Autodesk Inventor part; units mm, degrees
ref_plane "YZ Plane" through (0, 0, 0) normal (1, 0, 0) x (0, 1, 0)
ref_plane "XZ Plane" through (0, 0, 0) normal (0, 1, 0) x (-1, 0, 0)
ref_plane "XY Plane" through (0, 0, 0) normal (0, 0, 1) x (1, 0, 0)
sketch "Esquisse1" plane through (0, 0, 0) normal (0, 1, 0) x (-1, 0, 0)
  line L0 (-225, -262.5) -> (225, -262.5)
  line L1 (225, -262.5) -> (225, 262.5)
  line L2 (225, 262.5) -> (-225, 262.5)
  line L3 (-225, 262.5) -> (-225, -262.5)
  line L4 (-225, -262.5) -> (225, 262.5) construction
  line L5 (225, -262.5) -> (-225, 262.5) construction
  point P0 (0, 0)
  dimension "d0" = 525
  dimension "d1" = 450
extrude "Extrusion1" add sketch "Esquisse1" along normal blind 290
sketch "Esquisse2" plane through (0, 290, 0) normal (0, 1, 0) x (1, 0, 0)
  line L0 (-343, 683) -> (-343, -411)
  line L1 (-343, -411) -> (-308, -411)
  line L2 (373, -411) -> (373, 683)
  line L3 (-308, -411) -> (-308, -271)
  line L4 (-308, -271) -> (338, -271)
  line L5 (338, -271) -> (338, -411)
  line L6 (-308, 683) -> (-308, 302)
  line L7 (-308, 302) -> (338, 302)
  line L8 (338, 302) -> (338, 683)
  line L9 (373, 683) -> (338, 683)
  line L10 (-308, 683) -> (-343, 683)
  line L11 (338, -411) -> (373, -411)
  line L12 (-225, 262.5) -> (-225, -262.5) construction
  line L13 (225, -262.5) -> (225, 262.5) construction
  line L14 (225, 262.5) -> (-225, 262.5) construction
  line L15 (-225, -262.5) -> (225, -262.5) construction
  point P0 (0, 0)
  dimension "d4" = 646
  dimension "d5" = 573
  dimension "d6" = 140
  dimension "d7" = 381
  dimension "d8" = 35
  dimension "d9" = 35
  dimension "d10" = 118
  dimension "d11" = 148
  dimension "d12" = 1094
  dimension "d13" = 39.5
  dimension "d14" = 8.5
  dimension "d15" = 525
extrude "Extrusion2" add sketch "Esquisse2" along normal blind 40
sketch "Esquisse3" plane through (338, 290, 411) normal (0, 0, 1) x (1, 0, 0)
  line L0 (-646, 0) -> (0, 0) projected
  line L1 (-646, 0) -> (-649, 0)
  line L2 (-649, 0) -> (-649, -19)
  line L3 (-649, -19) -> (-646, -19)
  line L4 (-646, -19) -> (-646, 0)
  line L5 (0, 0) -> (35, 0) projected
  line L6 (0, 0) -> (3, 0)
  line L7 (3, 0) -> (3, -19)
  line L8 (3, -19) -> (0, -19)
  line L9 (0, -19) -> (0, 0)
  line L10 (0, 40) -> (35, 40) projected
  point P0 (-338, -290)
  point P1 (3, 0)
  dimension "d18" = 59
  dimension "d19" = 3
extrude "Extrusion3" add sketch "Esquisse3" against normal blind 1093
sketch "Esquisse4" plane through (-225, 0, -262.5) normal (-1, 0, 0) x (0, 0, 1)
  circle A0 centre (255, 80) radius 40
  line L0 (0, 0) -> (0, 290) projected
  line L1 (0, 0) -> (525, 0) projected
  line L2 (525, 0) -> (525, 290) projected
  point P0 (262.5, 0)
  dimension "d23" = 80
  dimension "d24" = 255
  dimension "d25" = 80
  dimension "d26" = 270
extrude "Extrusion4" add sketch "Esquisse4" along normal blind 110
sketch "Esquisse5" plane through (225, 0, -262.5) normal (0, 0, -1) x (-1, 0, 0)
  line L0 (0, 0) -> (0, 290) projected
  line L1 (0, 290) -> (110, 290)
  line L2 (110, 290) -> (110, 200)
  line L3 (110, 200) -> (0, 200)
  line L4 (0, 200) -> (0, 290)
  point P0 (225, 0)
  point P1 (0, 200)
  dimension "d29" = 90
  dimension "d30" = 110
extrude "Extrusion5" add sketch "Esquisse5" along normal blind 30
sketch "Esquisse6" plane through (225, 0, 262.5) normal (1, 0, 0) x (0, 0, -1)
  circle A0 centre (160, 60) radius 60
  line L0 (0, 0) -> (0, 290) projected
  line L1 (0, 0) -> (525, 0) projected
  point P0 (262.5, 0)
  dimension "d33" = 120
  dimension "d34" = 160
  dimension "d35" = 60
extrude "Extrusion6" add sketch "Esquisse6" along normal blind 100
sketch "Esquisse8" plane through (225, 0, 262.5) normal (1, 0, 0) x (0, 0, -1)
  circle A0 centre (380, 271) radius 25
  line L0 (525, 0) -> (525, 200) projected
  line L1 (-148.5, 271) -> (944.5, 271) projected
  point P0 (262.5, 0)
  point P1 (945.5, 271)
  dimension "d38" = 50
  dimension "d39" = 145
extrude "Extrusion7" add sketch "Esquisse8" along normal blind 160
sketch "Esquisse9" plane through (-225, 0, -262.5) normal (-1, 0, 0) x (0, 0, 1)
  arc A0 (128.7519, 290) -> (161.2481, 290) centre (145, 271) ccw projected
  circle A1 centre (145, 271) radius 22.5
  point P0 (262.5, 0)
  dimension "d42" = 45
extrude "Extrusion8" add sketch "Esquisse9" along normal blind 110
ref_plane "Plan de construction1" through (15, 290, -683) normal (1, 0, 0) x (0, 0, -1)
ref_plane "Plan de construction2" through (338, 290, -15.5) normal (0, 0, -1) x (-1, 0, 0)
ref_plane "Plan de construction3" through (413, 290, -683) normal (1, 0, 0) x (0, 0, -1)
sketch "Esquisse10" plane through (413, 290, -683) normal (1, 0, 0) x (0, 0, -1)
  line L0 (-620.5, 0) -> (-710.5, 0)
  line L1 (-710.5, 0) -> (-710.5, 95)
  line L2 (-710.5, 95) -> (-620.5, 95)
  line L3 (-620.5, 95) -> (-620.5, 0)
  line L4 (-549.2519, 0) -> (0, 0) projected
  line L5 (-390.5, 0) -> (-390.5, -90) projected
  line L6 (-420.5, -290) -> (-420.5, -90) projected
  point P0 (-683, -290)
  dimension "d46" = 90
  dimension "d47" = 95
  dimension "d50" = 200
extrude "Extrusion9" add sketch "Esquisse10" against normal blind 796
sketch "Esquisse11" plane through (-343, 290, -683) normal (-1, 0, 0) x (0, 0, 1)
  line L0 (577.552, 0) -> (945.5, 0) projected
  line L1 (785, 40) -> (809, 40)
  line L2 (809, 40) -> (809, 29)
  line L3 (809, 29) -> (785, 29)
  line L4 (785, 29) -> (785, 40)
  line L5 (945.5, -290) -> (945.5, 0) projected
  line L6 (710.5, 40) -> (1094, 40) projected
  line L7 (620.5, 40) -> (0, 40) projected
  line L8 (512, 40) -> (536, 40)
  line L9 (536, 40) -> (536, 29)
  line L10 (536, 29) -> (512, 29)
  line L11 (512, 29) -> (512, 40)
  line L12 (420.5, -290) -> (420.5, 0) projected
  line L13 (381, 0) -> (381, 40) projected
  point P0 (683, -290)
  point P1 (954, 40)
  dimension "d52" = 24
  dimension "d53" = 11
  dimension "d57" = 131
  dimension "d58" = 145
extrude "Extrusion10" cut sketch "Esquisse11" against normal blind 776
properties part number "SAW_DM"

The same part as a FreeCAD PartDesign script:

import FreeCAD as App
import Part
import Sketcher
Q = App.Units.Quantity

doc = App.newDocument("Part")
body = doc.addObject("PartDesign::Body", "Body")

# Sketch on XZ plane
sketch1 = body.newObject("Sketcher::SketchObject", "Sketch")
sketch1.AttachmentSupport = (doc.getObject("XZ_Plane"), [""])
sketch1.MapMode = "FlatFace"
sketch1.addGeometry([
    Part.LineSegment(App.Vector(225, 262.5, 0), App.Vector(225, -262.5, 0)),
    Part.LineSegment(App.Vector(225, -262.5, 0), App.Vector(-225, -262.5, 0)),
    Part.LineSegment(App.Vector(-225, -262.5, 0), App.Vector(-225, 262.5, 0)),
    Part.LineSegment(App.Vector(-225, 262.5, 0), App.Vector(225, 262.5, 0)),
], False)
sketch1.addConstraint([
    Sketcher.Constraint("Coincident", 0, 2, 1, 1),
    Sketcher.Constraint("Coincident", 1, 2, 2, 1),
    Sketcher.Constraint("Coincident", 2, 2, 3, 1),
    Sketcher.Constraint("Coincident", 3, 2, 0, 1),
    Sketcher.Constraint("Vertical", 0),
    Sketcher.Constraint("Horizontal", 1),
    Sketcher.Constraint("Vertical", 2),
    Sketcher.Constraint("Horizontal", 3),
    Sketcher.Constraint("Symmetric", 0, 2, 2, 2, -1, 1),
    Sketcher.Constraint("DistanceX", 1, 2, 1, 1, Q("450 mm")),
    Sketcher.Constraint("DistanceY", 0, 2, 0, 1, Q("525 mm")),
])
pad1 = body.newObject("PartDesign::Pad", "Pad")
pad1.Profile = sketch1
pad1.Length = 290
pad1.Reversed = True

# Sketch on XZ plane
sketch2 = body.newObject("Sketcher::SketchObject", "Sketch001")
sketch2.AttachmentSupport = (doc.getObject("XZ_Plane"), [""])
sketch2.MapMode = "FlatFace"
sketch2.AttachmentOffset = App.Placement(App.Vector(0, 0, -290), App.Rotation())
sketch2.addGeometry([
    Part.LineSegment(App.Vector(-308, -683, 0), App.Vector(-343, -683, 0)),  # 0
    Part.LineSegment(App.Vector(-343, -683, 0), App.Vector(-343, 411, 0)),  # 1
    Part.LineSegment(App.Vector(-343, 411, 0), App.Vector(-308, 411, 0)),  # 2
    Part.LineSegment(App.Vector(-308, 411, 0), App.Vector(-308, 271, 0)),  # 3
    Part.LineSegment(App.Vector(-308, 271, 0), App.Vector(338, 271, 0)),  # 4
    Part.LineSegment(App.Vector(338, 271, 0), App.Vector(338, 411, 0)),  # 5
    Part.LineSegment(App.Vector(338, 411, 0), App.Vector(373, 411, 0)),  # 6
    Part.LineSegment(App.Vector(373, 411, 0), App.Vector(373, -683, 0)),  # 7
    Part.LineSegment(App.Vector(373, -683, 0), App.Vector(338, -683, 0)),  # 8
    Part.LineSegment(App.Vector(338, -683, 0), App.Vector(338, -302, 0)),  # 9
    Part.LineSegment(App.Vector(338, -302, 0), App.Vector(-308, -302, 0)),  # 10
    Part.LineSegment(App.Vector(-308, -302, 0), App.Vector(-308, -683, 0)),  # 11
], False)
sketch2.addConstraint([
    Sketcher.Constraint("Coincident", 0, 2, 1, 1),
    Sketcher.Constraint("Coincident", 1, 2, 2, 1),
    Sketcher.Constraint("Coincident", 2, 2, 3, 1),
    Sketcher.Constraint("Coincident", 3, 2, 4, 1),
    Sketcher.Constraint("Coincident", 4, 2, 5, 1),
    Sketcher.Constraint("Coincident", 5, 2, 6, 1),
    Sketcher.Constraint("Coincident", 6, 2, 7, 1),
    Sketcher.Constraint("Coincident", 7, 2, 8, 1),
    Sketcher.Constraint("Coincident", 8, 2, 9, 1),
    Sketcher.Constraint("Coincident", 9, 2, 10, 1),
    Sketcher.Constraint("Coincident", 10, 2, 11, 1),
    Sketcher.Constraint("Coincident", 11, 2, 0, 1),
    Sketcher.Constraint("Horizontal", 0),
    Sketcher.Constraint("Vertical", 1),
    Sketcher.Constraint("Horizontal", 2),
    Sketcher.Constraint("Vertical", 3),
    Sketcher.Constraint("Horizontal", 4),
    Sketcher.Constraint("Vertical", 5),
    Sketcher.Constraint("Horizontal", 6),
    Sketcher.Constraint("Vertical", 7),
    Sketcher.Constraint("Horizontal", 8),
    Sketcher.Constraint("Vertical", 9),
    Sketcher.Constraint("Horizontal", 10),
    Sketcher.Constraint("Vertical", 11),
    Sketcher.Constraint("Horizontal", 2, 2, 5, 2),
    Sketcher.Constraint("Horizontal", 0, 2, 7, 2),
    Sketcher.Constraint("Vertical", 5, 2, 8, 2),
    Sketcher.Constraint("Vertical", 3, 2, 10, 2),
    Sketcher.Constraint("Equal", 2, 6),
    Sketcher.Constraint("DistanceX", 0, 2, 0, 1, Q("35 mm")),
    Sketcher.Constraint("DistanceX", 4, 1, 4, 2, Q("646 mm")),
    Sketcher.Constraint("DistanceY", 1, 1, 1, 2, Q("1094 mm")),
    Sketcher.Constraint("DistanceY", 3, 2, 3, 1, Q("140 mm")),
    Sketcher.Constraint("DistanceY", 9, 1, 9, 2, Q("381 mm")),
    Sketcher.Constraint("DistanceX", 0, 2, -1, 1, Q("343 mm")),
    Sketcher.Constraint("DistanceY", 0, 2, -1, 1, Q("683 mm")),
])
pad2 = body.newObject("PartDesign::Pad", "Pad001")
pad2.Profile = sketch2
pad2.Length = 40
pad2.Reversed = True

# Sketch on XY plane
sketch3 = body.newObject("Sketcher::SketchObject", "Sketch002")
sketch3.AttachmentSupport = (doc.getObject("XY_Plane"), [""])
sketch3.MapMode = "FlatFace"
sketch3.AttachmentOffset = App.Placement(App.Vector(0, 0, 411), App.Rotation())
sketch3.addGeometry([
    Part.LineSegment(App.Vector(341, 290, 0), App.Vector(338, 290, 0)),  # 0
    Part.LineSegment(App.Vector(338, 290, 0), App.Vector(338, 271, 0)),  # 1
    Part.LineSegment(App.Vector(338, 271, 0), App.Vector(341, 271, 0)),  # 2
    Part.LineSegment(App.Vector(341, 271, 0), App.Vector(341, 290, 0)),  # 3
    Part.LineSegment(App.Vector(-308, 271, 0), App.Vector(-308, 290, 0)),  # 4
    Part.LineSegment(App.Vector(-308, 290, 0), App.Vector(-311, 290, 0)),  # 5
    Part.LineSegment(App.Vector(-311, 290, 0), App.Vector(-311, 271, 0)),  # 6
    Part.LineSegment(App.Vector(-311, 271, 0), App.Vector(-308, 271, 0)),  # 7
], False)
sketch3.addConstraint([
    Sketcher.Constraint("Coincident", 0, 2, 1, 1),
    Sketcher.Constraint("Coincident", 1, 2, 2, 1),
    Sketcher.Constraint("Coincident", 2, 2, 3, 1),
    Sketcher.Constraint("Coincident", 3, 2, 0, 1),
    Sketcher.Constraint("Coincident", 4, 2, 5, 1),
    Sketcher.Constraint("Coincident", 5, 2, 6, 1),
    Sketcher.Constraint("Coincident", 6, 2, 7, 1),
    Sketcher.Constraint("Coincident", 7, 2, 4, 1),
    Sketcher.Constraint("Horizontal", 0),
    Sketcher.Constraint("Vertical", 1),
    Sketcher.Constraint("Horizontal", 2),
    Sketcher.Constraint("Vertical", 3),
    Sketcher.Constraint("Vertical", 4),
    Sketcher.Constraint("Horizontal", 5),
    Sketcher.Constraint("Vertical", 6),
    Sketcher.Constraint("Horizontal", 7),
    Sketcher.Constraint("Horizontal", 3, 2, 4, 2),
    Sketcher.Constraint("Horizontal", 2, 2, 6, 2),
    Sketcher.Constraint("Equal", 2, 5),
    Sketcher.Constraint("DistanceX", 0, 2, 0, 1, Q("3 mm")),
    Sketcher.Constraint("DistanceY", 1, 2, 1, 1, Q("19 mm")),
    Sketcher.Constraint("DistanceX", -1, 1, 0, 2, Q("338 mm")),
    Sketcher.Constraint("DistanceY", -1, 1, 0, 2, Q("290 mm")),
    Sketcher.Constraint("DistanceX", 4, 2, -1, 1, Q("308 mm")),
])
pad3 = body.newObject("PartDesign::Pad", "Pad002")
pad3.Profile = sketch3
pad3.Length = 1093
pad3.Reversed = True

# Sketch on YZ plane
sketch4 = body.newObject("Sketcher::SketchObject", "Sketch003")
sketch4.AttachmentSupport = (doc.getObject("YZ_Plane"), [""])
sketch4.MapMode = "FlatFace"
sketch4.AttachmentOffset = App.Placement(App.Vector(0, 0, -225), App.Rotation())
sketch4.addGeometry(Part.Circle(App.Vector(80, -7.5, 0), App.Vector(0, 0, 1), 40), False)
sketch4.addConstraint([
    Sketcher.Constraint("Diameter", 0, Q("80 mm")),
    Sketcher.Constraint("DistanceX", -1, 1, 0, 3, Q("80 mm")),
    Sketcher.Constraint("DistanceY", 0, 3, -1, 1, Q("7.5 mm")),
])
pad4 = body.newObject("PartDesign::Pad", "Pad003")
pad4.Profile = sketch4
pad4.Length = 110
pad4.Reversed = True

# Sketch on XY plane
sketch5 = body.newObject("Sketcher::SketchObject", "Sketch004")
sketch5.AttachmentSupport = (doc.getObject("XY_Plane"), [""])
sketch5.MapMode = "FlatFace"
sketch5.AttachmentOffset = App.Placement(App.Vector(0, 0, -262.5), App.Rotation())
sketch5.addGeometry([
    Part.LineSegment(App.Vector(225, 290, 0), App.Vector(225, 200, 0)),
    Part.LineSegment(App.Vector(225, 200, 0), App.Vector(115, 200, 0)),
    Part.LineSegment(App.Vector(115, 200, 0), App.Vector(115, 290, 0)),
    Part.LineSegment(App.Vector(115, 290, 0), App.Vector(225, 290, 0)),
], False)
sketch5.addConstraint([
    Sketcher.Constraint("Coincident", 0, 2, 1, 1),
    Sketcher.Constraint("Coincident", 1, 2, 2, 1),
    Sketcher.Constraint("Coincident", 2, 2, 3, 1),
    Sketcher.Constraint("Coincident", 3, 2, 0, 1),
    Sketcher.Constraint("Vertical", 0),
    Sketcher.Constraint("Horizontal", 1),
    Sketcher.Constraint("Vertical", 2),
    Sketcher.Constraint("Horizontal", 3),
    Sketcher.Constraint("DistanceX", 1, 2, 1, 1, Q("110 mm")),
    Sketcher.Constraint("DistanceY", 0, 2, 0, 1, Q("90 mm")),
    Sketcher.Constraint("DistanceX", -1, 1, 0, 2, Q("225 mm")),
    Sketcher.Constraint("DistanceY", -1, 1, 0, 2, Q("200 mm")),
])
pad5 = body.newObject("PartDesign::Pad", "Pad004")
pad5.Profile = sketch5
pad5.Length = 30
pad5.Reversed = True

# Sketch on YZ plane
sketch6 = body.newObject("Sketcher::SketchObject", "Sketch005")
sketch6.AttachmentSupport = (doc.getObject("YZ_Plane"), [""])
sketch6.MapMode = "FlatFace"
sketch6.AttachmentOffset = App.Placement(App.Vector(0, 0, 225), App.Rotation())
sketch6.addGeometry(Part.Circle(App.Vector(60, 102.5, 0), App.Vector(0, 0, 1), 60), False)
sketch6.addConstraint([
    Sketcher.Constraint("Diameter", 0, Q("120 mm")),
    Sketcher.Constraint("DistanceX", -1, 1, 0, 3, Q("60 mm")),
    Sketcher.Constraint("DistanceY", -1, 1, 0, 3, Q("102.5 mm")),
])
pad6 = body.newObject("PartDesign::Pad", "Pad005")
pad6.Profile = sketch6
pad6.Length = 100

# Sketch on YZ plane
sketch7 = body.newObject("Sketcher::SketchObject", "Sketch006")
sketch7.AttachmentSupport = (doc.getObject("YZ_Plane"), [""])
sketch7.MapMode = "FlatFace"
sketch7.AttachmentOffset = App.Placement(App.Vector(0, 0, 225), App.Rotation())
sketch7.addGeometry(Part.Circle(App.Vector(271, -117.5, 0), App.Vector(0, 0, 1), 25), False)
sketch7.addConstraint([
    Sketcher.Constraint("Diameter", 0, Q("50 mm")),
    Sketcher.Constraint("DistanceX", -1, 1, 0, 3, Q("271 mm")),
    Sketcher.Constraint("DistanceY", 0, 3, -1, 1, Q("117.5 mm")),
])
pad7 = body.newObject("PartDesign::Pad", "Pad006")
pad7.Profile = sketch7
pad7.Length = 160

# Sketch on YZ plane
sketch8 = body.newObject("Sketcher::SketchObject", "Sketch007")
sketch8.AttachmentSupport = (doc.getObject("YZ_Plane"), [""])
sketch8.MapMode = "FlatFace"
sketch8.AttachmentOffset = App.Placement(App.Vector(0, 0, -225), App.Rotation())
sketch8.addGeometry(Part.Circle(App.Vector(271, -117.5, 0), App.Vector(0, 0, 1), 22.5), False)
sketch8.addConstraint([
    Sketcher.Constraint("Diameter", 0, Q("45 mm")),
    Sketcher.Constraint("DistanceX", -1, 1, 0, 3, Q("271 mm")),
    Sketcher.Constraint("DistanceY", 0, 3, -1, 1, Q("117.5 mm")),
])
pad8 = body.newObject("PartDesign::Pad", "Pad007")
pad8.Profile = sketch8
pad8.Length = 110
pad8.Reversed = True

# Sketch on YZ plane
sketch9 = body.newObject("Sketcher::SketchObject", "Sketch008")
sketch9.AttachmentSupport = (doc.getObject("YZ_Plane"), [""])
sketch9.MapMode = "FlatFace"
sketch9.AttachmentOffset = App.Placement(App.Vector(0, 0, 413), App.Rotation())
sketch9.addGeometry([
    Part.LineSegment(App.Vector(290, 27.5, 0), App.Vector(290, -62.5, 0)),
    Part.LineSegment(App.Vector(290, -62.5, 0), App.Vector(385, -62.5, 0)),
    Part.LineSegment(App.Vector(385, -62.5, 0), App.Vector(385, 27.5, 0)),
    Part.LineSegment(App.Vector(385, 27.5, 0), App.Vector(290, 27.5, 0)),
], False)
sketch9.addConstraint([
    Sketcher.Constraint("Coincident", 0, 2, 1, 1),
    Sketcher.Constraint("Coincident", 1, 2, 2, 1),
    Sketcher.Constraint("Coincident", 2, 2, 3, 1),
    Sketcher.Constraint("Coincident", 3, 2, 0, 1),
    Sketcher.Constraint("Vertical", 0),
    Sketcher.Constraint("Horizontal", 1),
    Sketcher.Constraint("Vertical", 2),
    Sketcher.Constraint("Horizontal", 3),
    Sketcher.Constraint("DistanceX", 1, 1, 1, 2, Q("95 mm")),
    Sketcher.Constraint("DistanceY", 0, 2, 0, 1, Q("90 mm")),
    Sketcher.Constraint("DistanceX", -1, 1, 0, 2, Q("290 mm")),
    Sketcher.Constraint("DistanceY", 0, 2, -1, 1, Q("62.5 mm")),
])
pad9 = body.newObject("PartDesign::Pad", "Pad008")
pad9.Profile = sketch9
pad9.Length = 796
pad9.Reversed = True

# Sketch on YZ plane
sketch10 = body.newObject("Sketcher::SketchObject", "Sketch009")
sketch10.AttachmentSupport = (doc.getObject("YZ_Plane"), [""])
sketch10.MapMode = "FlatFace"
sketch10.AttachmentOffset = App.Placement(App.Vector(0, 0, -343), App.Rotation())
sketch10.addGeometry([
    Part.LineSegment(App.Vector(330, 126, 0), App.Vector(330, 102, 0)),  # 0
    Part.LineSegment(App.Vector(330, 102, 0), App.Vector(319, 102, 0)),  # 1
    Part.LineSegment(App.Vector(319, 102, 0), App.Vector(319, 126, 0)),  # 2
    Part.LineSegment(App.Vector(319, 126, 0), App.Vector(330, 126, 0)),  # 3
    Part.LineSegment(App.Vector(319, -147, 0), App.Vector(330, -147, 0)),  # 4
    Part.LineSegment(App.Vector(330, -147, 0), App.Vector(330, -171, 0)),  # 5
    Part.LineSegment(App.Vector(330, -171, 0), App.Vector(319, -171, 0)),  # 6
    Part.LineSegment(App.Vector(319, -171, 0), App.Vector(319, -147, 0)),  # 7
], False)
sketch10.addConstraint([
    Sketcher.Constraint("Coincident", 0, 2, 1, 1),
    Sketcher.Constraint("Coincident", 1, 2, 2, 1),
    Sketcher.Constraint("Coincident", 2, 2, 3, 1),
    Sketcher.Constraint("Coincident", 3, 2, 0, 1),
    Sketcher.Constraint("Coincident", 4, 2, 5, 1),
    Sketcher.Constraint("Coincident", 5, 2, 6, 1),
    Sketcher.Constraint("Coincident", 6, 2, 7, 1),
    Sketcher.Constraint("Coincident", 7, 2, 4, 1),
    Sketcher.Constraint("Vertical", 0),
    Sketcher.Constraint("Horizontal", 1),
    Sketcher.Constraint("Vertical", 2),
    Sketcher.Constraint("Horizontal", 3),
    Sketcher.Constraint("Horizontal", 4),
    Sketcher.Constraint("Vertical", 5),
    Sketcher.Constraint("Horizontal", 6),
    Sketcher.Constraint("Vertical", 7),
    Sketcher.Constraint("Vertical", 3, 2, 4, 2),
    Sketcher.Constraint("Vertical", 2, 2, 6, 2),
    Sketcher.Constraint("Equal", 2, 5),
    Sketcher.Constraint("DistanceX", 1, 2, 1, 1, Q("11 mm")),
    Sketcher.Constraint("DistanceY", 0, 2, 0, 1, Q("24 mm")),
    Sketcher.Constraint("DistanceX", -1, 1, 0, 2, Q("330 mm")),
    Sketcher.Constraint("DistanceY", -1, 1, 0, 2, Q("102 mm")),
    Sketcher.Constraint("DistanceY", 4, 2, -1, 1, Q("147 mm")),
])
pocket1 = body.newObject("PartDesign::Pocket", "Pocket")
pocket1.Profile = sketch10
pocket1.Length = 776
pocket1.Reversed = True

doc.recompute()
